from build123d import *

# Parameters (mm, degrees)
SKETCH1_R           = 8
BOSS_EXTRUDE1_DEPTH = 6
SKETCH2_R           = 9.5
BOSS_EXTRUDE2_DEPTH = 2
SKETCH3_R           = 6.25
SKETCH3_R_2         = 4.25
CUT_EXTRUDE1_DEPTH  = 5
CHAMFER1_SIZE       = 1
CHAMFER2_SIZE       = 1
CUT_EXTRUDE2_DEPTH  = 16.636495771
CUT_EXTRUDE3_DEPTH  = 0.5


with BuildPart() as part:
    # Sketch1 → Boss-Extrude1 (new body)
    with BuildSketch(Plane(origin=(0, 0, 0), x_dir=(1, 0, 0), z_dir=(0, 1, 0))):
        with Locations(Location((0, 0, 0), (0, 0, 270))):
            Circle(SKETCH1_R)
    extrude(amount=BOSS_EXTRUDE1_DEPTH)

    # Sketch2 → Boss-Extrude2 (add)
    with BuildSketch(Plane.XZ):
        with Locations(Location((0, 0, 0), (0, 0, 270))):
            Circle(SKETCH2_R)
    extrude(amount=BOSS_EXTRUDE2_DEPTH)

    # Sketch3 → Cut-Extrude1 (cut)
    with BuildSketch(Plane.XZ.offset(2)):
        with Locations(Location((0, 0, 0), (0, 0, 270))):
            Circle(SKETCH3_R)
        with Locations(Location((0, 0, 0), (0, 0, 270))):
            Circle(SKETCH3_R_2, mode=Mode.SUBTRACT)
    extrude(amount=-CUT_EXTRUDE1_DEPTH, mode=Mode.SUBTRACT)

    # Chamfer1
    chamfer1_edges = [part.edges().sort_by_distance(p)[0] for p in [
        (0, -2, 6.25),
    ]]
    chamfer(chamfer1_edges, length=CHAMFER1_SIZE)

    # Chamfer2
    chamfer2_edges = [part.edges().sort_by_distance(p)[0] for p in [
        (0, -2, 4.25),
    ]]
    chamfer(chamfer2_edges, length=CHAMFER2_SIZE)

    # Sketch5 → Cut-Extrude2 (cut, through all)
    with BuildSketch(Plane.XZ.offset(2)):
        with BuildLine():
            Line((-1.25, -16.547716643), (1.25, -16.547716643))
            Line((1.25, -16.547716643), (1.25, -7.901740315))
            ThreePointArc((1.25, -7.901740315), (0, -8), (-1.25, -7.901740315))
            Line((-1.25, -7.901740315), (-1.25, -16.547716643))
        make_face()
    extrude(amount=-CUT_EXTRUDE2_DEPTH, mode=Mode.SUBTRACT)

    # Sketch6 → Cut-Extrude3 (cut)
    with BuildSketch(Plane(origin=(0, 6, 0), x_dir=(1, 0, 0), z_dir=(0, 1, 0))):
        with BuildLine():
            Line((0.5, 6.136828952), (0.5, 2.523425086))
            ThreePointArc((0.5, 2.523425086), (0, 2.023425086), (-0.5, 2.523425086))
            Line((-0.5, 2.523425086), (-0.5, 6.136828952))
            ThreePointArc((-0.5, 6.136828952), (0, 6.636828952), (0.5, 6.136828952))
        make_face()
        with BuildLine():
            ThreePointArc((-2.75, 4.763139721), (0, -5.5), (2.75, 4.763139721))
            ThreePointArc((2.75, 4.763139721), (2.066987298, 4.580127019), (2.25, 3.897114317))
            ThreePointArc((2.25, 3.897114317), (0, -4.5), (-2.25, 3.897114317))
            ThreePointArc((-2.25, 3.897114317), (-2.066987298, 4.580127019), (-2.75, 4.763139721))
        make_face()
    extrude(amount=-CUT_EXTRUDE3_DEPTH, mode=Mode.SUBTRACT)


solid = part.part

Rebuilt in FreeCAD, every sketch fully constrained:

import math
import FreeCAD as App
import Part
import Sketcher
Q = App.Units.Quantity


def edges_at(feature, points):
    """Names of the edges that pass closest to the given points."""
    edges = feature.Shape.Edges
    near = lambda p: min(range(len(edges)), key=lambda i: edges[i].distToShape(Part.Vertex(*p))[0])
    return sorted({f"Edge{near(p) + 1}" for p in points})

doc = App.newDocument("Part")
body = doc.addObject("PartDesign::Body", "Body")

# Sketch on XZ plane
sketch1 = body.newObject("Sketcher::SketchObject", "Sketch")
sketch1.AttachmentSupport = (doc.getObject("XZ_Plane"), [""])
sketch1.MapMode = "FlatFace"
sketch1.addGeometry(Part.Circle(App.Vector(0, 0, 0), App.Vector(0, 0, 1), 8), False)
sketch1.addConstraint(Sketcher.Constraint("Coincident", 0, 3, -1, 1))
sketch1.addConstraint(Sketcher.Constraint("Diameter", 0, Q("16 mm")))
pad1 = body.newObject("PartDesign::Pad", "Pad")
pad1.Profile = sketch1
pad1.Length = 6
pad1.Reversed = True

# Sketch on XZ plane
sketch2 = body.newObject("Sketcher::SketchObject", "Sketch001")
sketch2.AttachmentSupport = (doc.getObject("XZ_Plane"), [""])
sketch2.MapMode = "FlatFace"
sketch2.addGeometry(Part.Circle(App.Vector(0, 0, 0), App.Vector(0, 0, 1), 10), False)
sketch2.addConstraint(Sketcher.Constraint("Coincident", 0, 3, -1, 1))
sketch2.addConstraint(Sketcher.Constraint("Diameter", 0, Q("19 mm")))
pad2 = body.newObject("PartDesign::Pad", "Pad001")
pad2.Profile = sketch2
pad2.Length = 2

# Sketch on XZ plane
sketch3 = body.newObject("Sketcher::SketchObject", "Sketch002")
sketch3.AttachmentSupport = (doc.getObject("XZ_Plane"), [""])
sketch3.MapMode = "FlatFace"
sketch3.AttachmentOffset = App.Placement(App.Vector(0, 0, 2), App.Rotation())
sketch3.addGeometry(Part.Circle(App.Vector(0, 0, 0), App.Vector(0, 0, 1), 6.2), False)
sketch3.addGeometry(Part.Circle(App.Vector(0, 0, 0), App.Vector(0, 0, 1), 4.2), False)
sketch3.addConstraint(Sketcher.Constraint("Coincident", 0, 3, -1, 1))
sketch3.addConstraint(Sketcher.Constraint("Coincident", 1, 3, -1, 1))
sketch3.addConstraint(Sketcher.Constraint("Diameter", 0, Q("12.5 mm")))
sketch3.addConstraint(Sketcher.Constraint("Diameter", 1, Q("8.5 mm")))
pocket1 = body.newObject("PartDesign::Pocket", "Pocket")
pocket1.Profile = sketch3
pocket1.Length = 5
doc.recompute()

chamfer = body.newObject("PartDesign::Chamfer", "Chamfer")
chamfer.Base = (pocket1, edges_at(pocket1, [(0, -2, 6.25)]))
chamfer.Size = 1
doc.recompute()

chamfer2 = body.newObject("PartDesign::Chamfer", "Chamfer001")
chamfer2.Base = (chamfer, edges_at(chamfer, [(0, -2, 4.25)]))
chamfer2.Size = 1

# Sketch on XZ plane
sketch4 = body.newObject("Sketcher::SketchObject", "Sketch003")
sketch4.AttachmentSupport = (doc.getObject("XZ_Plane"), [""])
sketch4.MapMode = "FlatFace"
sketch4.AttachmentOffset = App.Placement(App.Vector(0, 0, 2), App.Rotation())
sketch4.addGeometry(Part.LineSegment(App.Vector(-1.2, -16.5, 0), App.Vector(1.2, -16.5, 0)), False)
sketch4.addGeometry(Part.LineSegment(App.Vector(1.2, -16.5, 0), App.Vector(1.2, -7.9, 0)), False)
sketch4.addGeometry(Part.ArcOfCircle(Part.Circle(App.Vector(0, 0, 0), App.Vector(0, 0, 1), 8), math.radians(-98.99), math.radians(-81.01)), False)
sketch4.addGeometry(Part.LineSegment(App.Vector(-1.2, -7.9, 0), App.Vector(-1.2, -16.5, 0)), False)
sketch4.addConstraint(Sketcher.Constraint("Coincident", 0, 2, 1, 1))
sketch4.addConstraint(Sketcher.Constraint("Coincident", 1, 2, 2, 2))
sketch4.addConstraint(Sketcher.Constraint("Coincident", 2, 1, 3, 1))
sketch4.addConstraint(Sketcher.Constraint("Coincident", 3, 2, 0, 1))
sketch4.addConstraint(Sketcher.Constraint("Horizontal", 0))
sketch4.addConstraint(Sketcher.Constraint("Vertical", 1))
sketch4.addConstraint(Sketcher.Constraint("Vertical", 3))
sketch4.addConstraint(Sketcher.Constraint("Coincident", 2, 3, -1, 1))
sketch4.addConstraint(Sketcher.Constraint("Horizontal", 1, 2, 2, 1))
sketch4.addConstraint(Sketcher.Constraint("Radius", 2, Q("8 mm")))
sketch4.addConstraint(Sketcher.Constraint("DistanceX", 0, 1, 0, 2, Q("2.5 mm")))
sketch4.addConstraint(Sketcher.Constraint("DistanceY", 1, 1, 1, 2, Q("8.645976 mm")))
pocket2 = body.newObject("PartDesign::Pocket", "Pocket001")
pocket2.Profile = sketch4
pocket2.Type = "ThroughAll"

# Sketch on XZ plane
sketch5 = body.newObject("Sketcher::SketchObject", "Sketch004")
sketch5.AttachmentSupport = (doc.getObject("XZ_Plane"), [""])
sketch5.MapMode = "FlatFace"
sketch5.AttachmentOffset = App.Placement(App.Vector(0, 0, -6), App.Rotation())
sketch5.addGeometry(Part.LineSegment(App.Vector(0.5, -2.5, 0), App.Vector(0.5, -6.1, 0)), False)
sketch5.addGeometry(Part.ArcOfCircle(Part.Circle(App.Vector(0, -6.1, 0), App.Vector(0, 0, 1), 0.5), math.radians(180), math.radians(360)), False)
sketch5.addGeometry(Part.LineSegment(App.Vector(-0.5, -6.1, 0), App.Vector(-0.5, -2.5, 0)), False)
sketch5.addGeometry(Part.ArcOfCircle(Part.Circle(App.Vector(0, -2.5, 0), App.Vector(0, 0, 1), 0.5), math.radians(0), math.radians(180)), False)
sketch5.addGeometry(Part.ArcOfCircle(Part.Circle(App.Vector(0, 0, 0), App.Vector(0, 0, 1), 5.5), math.radians(-60), math.radians(240)), False)
sketch5.addGeometry(Part.ArcOfCircle(Part.Circle(App.Vector(2.5, -4.3, 0), App.Vector(0, 0, 1), 0.5), math.radians(120), math.radians(300)), False)
sketch5.addGeometry(Part.ArcOfCircle(Part.Circle(App.Vector(0, 0, 0), App.Vector(0, 0, 1), 4.5), math.radians(-60), math.radians(240)), False)
sketch5.addGeometry(Part.ArcOfCircle(Part.Circle(App.Vector(-2.5, -4.3, 0), App.Vector(0, 0, 1), 0.5), math.radians(-120), math.radians(60)), False)
sketch5.addConstraint(Sketcher.Constraint("Tangent", 0, 2, 1, 2))
sketch5.addConstraint(Sketcher.Constraint("Tangent", 1, 1, 2, 1))
sketch5.addConstraint(Sketcher.Constraint("Tangent", 2, 2, 3, 2))
sketch5.addConstraint(Sketcher.Constraint("Tangent", 3, 1, 0, 1))
sketch5.addConstraint(Sketcher.Constraint("Tangent", 4, 1, 5, 2))
sketch5.addConstraint(Sketcher.Constraint("Tangent", 5, 1, 6, 1))
sketch5.addConstraint(Sketcher.Constraint("Tangent", 6, 2, 7, 2))
sketch5.addConstraint(Sketcher.Constraint("Tangent", 7, 1, 4, 2))
sketch5.addConstraint(Sketcher.Constraint("Vertical", 0))
sketch5.addConstraint(Sketcher.Constraint("Vertical", 2))
sketch5.addConstraint(Sketcher.Constraint("Coincident", 4, 3, -1, 1))
sketch5.addConstraint(Sketcher.Constraint("Coincident", 6, 3, -1, 1))
sketch5.addConstraint(Sketcher.Constraint("Equal", 3, 5))
sketch5.addConstraint(Sketcher.Constraint("PointOnObject", 1, 3, -2))
sketch5.addConstraint(Sketcher.Constraint("Horizontal", 5, 3, 7, 3))
sketch5.addConstraint(Sketcher.Constraint("Radius", 1, Q("0.5 mm")))
sketch5.addConstraint(Sketcher.Constraint("Radius", 4, Q("5.5 mm")))
sketch5.addConstraint(Sketcher.Constraint("DistanceX", 7, 3, 5, 3, Q("5 mm")))
sketch5.addConstraint(Sketcher.Constraint("DistanceY", 5, 3, 3, 3, Q("1.806702 mm")))
sketch5.addConstraint(Sketcher.Constraint("DistanceY", 1, 3, 5, 3, Q("1.806702 mm")))
pocket3 = body.newObject("PartDesign::Pocket", "Pocket002")
pocket3.Profile = sketch5
pocket3.Length = 0.5
pocket3.Reversed = True

doc.recompute()
